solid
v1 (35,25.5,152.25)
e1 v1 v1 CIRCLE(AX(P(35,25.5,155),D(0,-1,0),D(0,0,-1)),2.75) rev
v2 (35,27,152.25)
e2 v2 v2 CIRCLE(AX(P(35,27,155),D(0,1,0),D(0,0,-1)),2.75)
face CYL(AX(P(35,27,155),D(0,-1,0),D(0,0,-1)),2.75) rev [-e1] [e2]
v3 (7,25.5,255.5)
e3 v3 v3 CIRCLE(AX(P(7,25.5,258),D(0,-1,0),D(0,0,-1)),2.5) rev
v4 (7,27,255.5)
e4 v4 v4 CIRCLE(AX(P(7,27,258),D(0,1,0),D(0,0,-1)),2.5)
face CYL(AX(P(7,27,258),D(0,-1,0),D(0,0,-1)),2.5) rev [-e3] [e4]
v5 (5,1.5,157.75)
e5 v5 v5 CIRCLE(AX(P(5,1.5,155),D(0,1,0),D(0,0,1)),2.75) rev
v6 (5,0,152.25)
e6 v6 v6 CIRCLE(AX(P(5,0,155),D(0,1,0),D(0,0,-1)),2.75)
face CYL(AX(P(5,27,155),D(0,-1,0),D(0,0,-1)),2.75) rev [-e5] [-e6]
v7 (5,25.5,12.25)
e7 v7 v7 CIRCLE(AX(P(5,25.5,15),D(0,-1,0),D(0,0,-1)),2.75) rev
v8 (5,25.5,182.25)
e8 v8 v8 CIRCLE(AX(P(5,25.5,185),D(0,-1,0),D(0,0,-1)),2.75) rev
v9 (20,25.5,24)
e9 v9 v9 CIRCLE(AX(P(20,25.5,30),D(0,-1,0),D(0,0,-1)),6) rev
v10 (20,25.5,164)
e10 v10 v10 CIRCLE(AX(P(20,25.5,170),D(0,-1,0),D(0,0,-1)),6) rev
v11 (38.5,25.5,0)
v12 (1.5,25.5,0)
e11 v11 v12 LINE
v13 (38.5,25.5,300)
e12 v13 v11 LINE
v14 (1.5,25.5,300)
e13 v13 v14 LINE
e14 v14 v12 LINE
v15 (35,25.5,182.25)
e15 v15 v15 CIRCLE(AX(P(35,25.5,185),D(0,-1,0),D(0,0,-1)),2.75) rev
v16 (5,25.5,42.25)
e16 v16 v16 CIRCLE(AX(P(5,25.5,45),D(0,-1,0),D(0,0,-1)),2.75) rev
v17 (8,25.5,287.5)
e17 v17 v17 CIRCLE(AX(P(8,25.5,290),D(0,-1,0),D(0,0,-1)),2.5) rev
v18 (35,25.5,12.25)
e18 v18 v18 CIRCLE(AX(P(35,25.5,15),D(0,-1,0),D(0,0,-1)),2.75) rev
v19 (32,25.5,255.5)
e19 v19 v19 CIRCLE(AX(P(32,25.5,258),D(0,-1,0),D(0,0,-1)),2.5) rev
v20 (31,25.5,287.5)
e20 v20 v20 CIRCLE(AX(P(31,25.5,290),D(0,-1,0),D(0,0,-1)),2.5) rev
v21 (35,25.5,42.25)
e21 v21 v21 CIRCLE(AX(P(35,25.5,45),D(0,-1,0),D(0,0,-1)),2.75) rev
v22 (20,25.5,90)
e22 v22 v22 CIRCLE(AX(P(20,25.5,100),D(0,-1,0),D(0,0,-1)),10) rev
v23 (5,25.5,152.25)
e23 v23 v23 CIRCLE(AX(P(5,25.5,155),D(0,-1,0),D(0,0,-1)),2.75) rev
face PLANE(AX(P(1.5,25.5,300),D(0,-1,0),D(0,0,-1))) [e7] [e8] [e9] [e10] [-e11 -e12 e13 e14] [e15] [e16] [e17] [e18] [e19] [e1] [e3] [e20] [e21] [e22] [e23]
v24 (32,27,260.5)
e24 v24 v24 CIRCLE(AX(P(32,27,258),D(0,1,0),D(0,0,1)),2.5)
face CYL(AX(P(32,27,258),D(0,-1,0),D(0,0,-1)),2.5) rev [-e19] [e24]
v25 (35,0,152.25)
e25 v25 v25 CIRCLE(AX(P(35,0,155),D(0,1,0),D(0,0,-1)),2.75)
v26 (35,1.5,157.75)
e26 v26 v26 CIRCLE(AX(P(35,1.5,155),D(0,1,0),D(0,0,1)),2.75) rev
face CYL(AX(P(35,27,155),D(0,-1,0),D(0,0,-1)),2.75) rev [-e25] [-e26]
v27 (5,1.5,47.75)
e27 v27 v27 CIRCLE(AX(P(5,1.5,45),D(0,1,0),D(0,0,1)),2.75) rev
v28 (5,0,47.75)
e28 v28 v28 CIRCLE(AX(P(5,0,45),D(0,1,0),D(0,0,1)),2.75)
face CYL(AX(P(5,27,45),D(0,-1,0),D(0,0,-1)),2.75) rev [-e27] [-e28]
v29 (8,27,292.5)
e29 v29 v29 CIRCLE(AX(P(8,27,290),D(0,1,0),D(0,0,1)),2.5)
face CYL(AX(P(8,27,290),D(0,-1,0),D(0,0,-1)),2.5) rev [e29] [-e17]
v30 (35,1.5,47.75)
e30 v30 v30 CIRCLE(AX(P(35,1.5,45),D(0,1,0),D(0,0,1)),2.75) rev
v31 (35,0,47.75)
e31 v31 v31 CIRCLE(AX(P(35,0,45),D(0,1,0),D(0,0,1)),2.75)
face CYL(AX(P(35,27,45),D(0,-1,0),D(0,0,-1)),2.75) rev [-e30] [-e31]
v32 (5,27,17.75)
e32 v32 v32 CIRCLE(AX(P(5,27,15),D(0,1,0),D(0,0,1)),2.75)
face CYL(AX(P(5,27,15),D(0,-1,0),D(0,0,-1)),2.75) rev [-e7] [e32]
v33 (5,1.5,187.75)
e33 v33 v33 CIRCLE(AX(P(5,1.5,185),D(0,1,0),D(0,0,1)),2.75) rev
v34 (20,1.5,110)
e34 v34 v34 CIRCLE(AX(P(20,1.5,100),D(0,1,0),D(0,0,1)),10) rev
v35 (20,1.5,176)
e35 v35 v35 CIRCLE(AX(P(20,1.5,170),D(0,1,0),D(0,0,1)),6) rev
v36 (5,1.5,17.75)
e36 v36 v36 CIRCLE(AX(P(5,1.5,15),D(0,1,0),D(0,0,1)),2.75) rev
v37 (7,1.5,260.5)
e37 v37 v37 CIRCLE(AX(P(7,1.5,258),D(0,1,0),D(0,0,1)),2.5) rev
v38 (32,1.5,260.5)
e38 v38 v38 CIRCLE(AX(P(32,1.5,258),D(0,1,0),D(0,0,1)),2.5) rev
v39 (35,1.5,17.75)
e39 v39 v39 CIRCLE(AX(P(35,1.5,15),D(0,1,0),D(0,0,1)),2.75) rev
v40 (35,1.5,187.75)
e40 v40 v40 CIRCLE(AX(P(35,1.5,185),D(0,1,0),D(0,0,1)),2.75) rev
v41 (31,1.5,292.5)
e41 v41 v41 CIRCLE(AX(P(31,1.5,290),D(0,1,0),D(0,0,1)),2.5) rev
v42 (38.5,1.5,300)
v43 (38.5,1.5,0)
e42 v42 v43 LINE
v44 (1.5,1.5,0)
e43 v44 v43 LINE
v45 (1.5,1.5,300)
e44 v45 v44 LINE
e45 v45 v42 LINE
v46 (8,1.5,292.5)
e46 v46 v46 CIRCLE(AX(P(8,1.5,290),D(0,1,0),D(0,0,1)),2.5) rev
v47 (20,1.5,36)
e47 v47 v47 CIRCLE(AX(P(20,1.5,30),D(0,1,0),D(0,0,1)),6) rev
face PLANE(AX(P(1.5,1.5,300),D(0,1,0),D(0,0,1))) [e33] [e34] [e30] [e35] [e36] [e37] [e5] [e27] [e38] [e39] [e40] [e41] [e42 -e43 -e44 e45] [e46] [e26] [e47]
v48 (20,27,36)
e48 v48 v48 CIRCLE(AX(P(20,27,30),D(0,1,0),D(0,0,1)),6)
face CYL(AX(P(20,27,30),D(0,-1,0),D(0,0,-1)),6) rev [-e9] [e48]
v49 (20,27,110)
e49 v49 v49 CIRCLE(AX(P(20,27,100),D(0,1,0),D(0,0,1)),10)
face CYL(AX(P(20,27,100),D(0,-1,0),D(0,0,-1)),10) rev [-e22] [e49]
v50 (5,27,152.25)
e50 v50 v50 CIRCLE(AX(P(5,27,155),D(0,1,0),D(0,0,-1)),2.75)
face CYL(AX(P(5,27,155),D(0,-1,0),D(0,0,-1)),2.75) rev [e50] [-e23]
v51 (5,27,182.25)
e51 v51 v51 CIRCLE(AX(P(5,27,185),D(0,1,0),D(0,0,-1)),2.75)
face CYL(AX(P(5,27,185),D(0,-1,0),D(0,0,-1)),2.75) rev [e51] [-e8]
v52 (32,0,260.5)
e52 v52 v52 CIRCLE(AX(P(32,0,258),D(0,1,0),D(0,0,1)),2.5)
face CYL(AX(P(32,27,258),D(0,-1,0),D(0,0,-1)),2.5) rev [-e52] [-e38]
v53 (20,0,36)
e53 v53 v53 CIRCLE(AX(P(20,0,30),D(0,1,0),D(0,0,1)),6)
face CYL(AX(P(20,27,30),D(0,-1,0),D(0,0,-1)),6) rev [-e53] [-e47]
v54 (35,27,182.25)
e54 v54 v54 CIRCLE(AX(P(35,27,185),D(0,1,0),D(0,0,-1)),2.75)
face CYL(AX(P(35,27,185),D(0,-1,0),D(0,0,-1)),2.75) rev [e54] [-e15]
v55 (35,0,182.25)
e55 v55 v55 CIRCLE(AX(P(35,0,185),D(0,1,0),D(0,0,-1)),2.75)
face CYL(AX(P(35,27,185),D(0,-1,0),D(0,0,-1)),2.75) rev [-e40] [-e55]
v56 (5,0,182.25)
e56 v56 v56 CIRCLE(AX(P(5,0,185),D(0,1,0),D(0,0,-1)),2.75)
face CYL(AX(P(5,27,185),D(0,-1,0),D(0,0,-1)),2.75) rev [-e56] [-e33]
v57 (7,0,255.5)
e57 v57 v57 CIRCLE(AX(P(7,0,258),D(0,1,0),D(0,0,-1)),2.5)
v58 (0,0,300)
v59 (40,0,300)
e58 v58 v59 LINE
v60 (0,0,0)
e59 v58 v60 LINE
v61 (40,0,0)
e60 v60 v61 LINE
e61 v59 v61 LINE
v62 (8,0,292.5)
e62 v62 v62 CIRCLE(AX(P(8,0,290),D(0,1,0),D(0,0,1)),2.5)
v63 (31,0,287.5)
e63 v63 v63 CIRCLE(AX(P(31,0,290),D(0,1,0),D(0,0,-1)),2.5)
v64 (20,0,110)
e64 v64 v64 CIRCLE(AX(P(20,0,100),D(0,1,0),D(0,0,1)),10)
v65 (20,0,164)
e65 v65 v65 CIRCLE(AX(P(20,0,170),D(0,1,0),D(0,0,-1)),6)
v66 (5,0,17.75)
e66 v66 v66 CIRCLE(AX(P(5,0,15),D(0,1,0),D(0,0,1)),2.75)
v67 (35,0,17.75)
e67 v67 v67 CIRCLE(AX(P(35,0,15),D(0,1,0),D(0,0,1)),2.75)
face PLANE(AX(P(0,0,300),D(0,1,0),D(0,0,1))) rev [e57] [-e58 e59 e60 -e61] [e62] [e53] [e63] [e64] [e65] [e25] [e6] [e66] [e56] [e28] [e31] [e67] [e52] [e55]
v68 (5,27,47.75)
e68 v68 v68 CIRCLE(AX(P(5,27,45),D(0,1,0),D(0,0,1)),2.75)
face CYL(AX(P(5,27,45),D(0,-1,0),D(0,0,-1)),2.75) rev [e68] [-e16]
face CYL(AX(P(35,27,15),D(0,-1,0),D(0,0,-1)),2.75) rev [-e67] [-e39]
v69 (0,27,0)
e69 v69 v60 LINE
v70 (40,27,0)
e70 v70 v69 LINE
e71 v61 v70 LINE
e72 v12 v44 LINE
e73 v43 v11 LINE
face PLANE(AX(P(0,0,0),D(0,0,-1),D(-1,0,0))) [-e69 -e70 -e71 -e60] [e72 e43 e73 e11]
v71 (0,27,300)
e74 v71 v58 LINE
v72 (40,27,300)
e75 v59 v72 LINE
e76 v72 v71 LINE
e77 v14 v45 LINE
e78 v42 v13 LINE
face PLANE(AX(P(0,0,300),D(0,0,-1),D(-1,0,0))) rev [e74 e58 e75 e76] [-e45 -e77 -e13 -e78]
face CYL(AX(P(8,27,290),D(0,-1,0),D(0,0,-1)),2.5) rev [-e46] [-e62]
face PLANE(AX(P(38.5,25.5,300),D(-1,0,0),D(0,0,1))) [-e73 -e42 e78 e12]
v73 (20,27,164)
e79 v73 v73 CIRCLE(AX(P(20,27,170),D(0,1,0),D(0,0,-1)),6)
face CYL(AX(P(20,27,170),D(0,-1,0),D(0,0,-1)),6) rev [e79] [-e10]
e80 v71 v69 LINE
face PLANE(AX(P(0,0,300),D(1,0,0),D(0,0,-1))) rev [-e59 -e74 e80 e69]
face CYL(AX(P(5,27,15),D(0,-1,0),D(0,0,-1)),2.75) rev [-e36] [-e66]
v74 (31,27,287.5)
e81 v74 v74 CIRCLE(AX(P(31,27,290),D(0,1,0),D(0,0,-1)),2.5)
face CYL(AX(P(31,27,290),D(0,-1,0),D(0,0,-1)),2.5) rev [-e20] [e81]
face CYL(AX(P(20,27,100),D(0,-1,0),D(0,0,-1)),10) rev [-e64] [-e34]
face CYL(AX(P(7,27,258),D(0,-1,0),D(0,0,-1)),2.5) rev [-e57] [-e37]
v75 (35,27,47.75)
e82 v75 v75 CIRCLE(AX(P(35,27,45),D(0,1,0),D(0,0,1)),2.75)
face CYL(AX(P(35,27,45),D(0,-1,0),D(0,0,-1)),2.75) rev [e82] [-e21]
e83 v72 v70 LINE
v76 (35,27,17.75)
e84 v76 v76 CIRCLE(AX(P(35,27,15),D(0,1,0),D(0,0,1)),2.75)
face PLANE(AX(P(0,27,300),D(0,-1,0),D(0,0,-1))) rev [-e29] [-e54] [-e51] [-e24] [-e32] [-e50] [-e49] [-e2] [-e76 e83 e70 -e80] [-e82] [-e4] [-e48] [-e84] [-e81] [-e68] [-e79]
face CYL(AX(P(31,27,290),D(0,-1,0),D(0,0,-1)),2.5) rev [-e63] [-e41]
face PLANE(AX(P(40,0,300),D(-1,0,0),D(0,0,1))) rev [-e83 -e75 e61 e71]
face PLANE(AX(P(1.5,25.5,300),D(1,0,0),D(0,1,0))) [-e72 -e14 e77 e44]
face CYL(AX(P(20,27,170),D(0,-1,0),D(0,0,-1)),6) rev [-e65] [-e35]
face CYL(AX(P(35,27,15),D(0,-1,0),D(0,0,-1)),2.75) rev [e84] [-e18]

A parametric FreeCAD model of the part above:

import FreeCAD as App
import Part
import Sketcher
from FreeCAD import Vector


def add_polygon(sketch, points):
    """Adds a closed chain of lines whose ends are joined by coincident constraints."""
    first, n = sketch.GeometryCount, len(points)
    for a, b in zip(points, points[1:] + points[:1]):
        sketch.addGeometry(Part.LineSegment(App.Vector(*a, 0), App.Vector(*b, 0)), False)
    for i in range(n):
        sketch.addConstraint(Sketcher.Constraint("Coincident", first + i, 2, first + (i + 1) % n, 1))

doc = App.newDocument("Part")
body = doc.addObject("PartDesign::Body", "Body")

# Sketch on XY plane
sketch1 = doc.addObject("Sketcher::SketchObject", "Sketch")
body.addObject(sketch1)
sketch1.AttachmentSupport = (doc.XY_Plane, [""])
sketch1.MapMode = "FlatFace"
add_polygon(sketch1, [(0, 27), (0, 0), (40, 0), (40, 27)])  # lines 0-3
add_polygon(sketch1, [(38, 2), (2, 2), (2, 26), (38, 26)])  # lines 4-7
sketch1.addConstraint([
    Sketcher.Constraint("Vertical", 0),
    Sketcher.Constraint("Horizontal", 1),
    Sketcher.Constraint("Vertical", 2),
    Sketcher.Constraint("Horizontal", 3),
    Sketcher.Constraint("Horizontal", 4),
    Sketcher.Constraint("Vertical", 5),
    Sketcher.Constraint("Horizontal", 6),
    Sketcher.Constraint("Vertical", 7),
    Sketcher.Constraint("Coincident", 0, 2, -1, 1),
    Sketcher.Constraint("DistanceX", 1, 1, 1, 2, 40.0),
    Sketcher.Constraint("DistanceX", 4, 2, 4, 1, 37.0),
    Sketcher.Constraint("DistanceY", 0, 2, 0, 1, 27.0),
    Sketcher.Constraint("DistanceY", 5, 1, 5, 2, 24.0),
    Sketcher.Constraint("DistanceX", -1, 1, 4, 2, 1.5),
    Sketcher.Constraint("DistanceY", -1, 1, 4, 2, 1.5),
])
pad1 = doc.addObject("PartDesign::Pad", "Pad")
body.addObject(pad1)
pad1.Profile = sketch1
pad1.Length = 300

# Sketch on XZ plane
sketch2 = doc.addObject("Sketcher::SketchObject", "Sketch001")
body.addObject(sketch2)
sketch2.AttachmentSupport = (doc.XZ_Plane, [""])
sketch2.MapMode = "FlatFace"
sketch2.addGeometry([
    Part.Circle(Vector(8, 290, 0), Vector(0, 0, 1), 2.5),
    Part.Circle(Vector(32, 258, 0), Vector(0, 0, 1), 2.5),
    Part.Circle(Vector(7, 258, 0), Vector(0, 0, 1), 2.5),
    Part.Circle(Vector(31, 290, 0), Vector(0, 0, 1), 2.5),
], False)
sketch2.addConstraint([
    Sketcher.Constraint("Equal", 0, 1),
    Sketcher.Constraint("Equal", 1, 2),
    Sketcher.Constraint("Equal", 2, 3),
    Sketcher.Constraint("Horizontal", 1, 3, 2, 3),
    Sketcher.Constraint("Horizontal", 0, 3, 3, 3),
    Sketcher.Constraint("Diameter", 0, 5.0),
    Sketcher.Constraint("DistanceX", -1, 1, 0, 3, 8.0),
    Sketcher.Constraint("DistanceY", -1, 1, 0, 3, 290.0),
    Sketcher.Constraint("DistanceX", -1, 1, 1, 3, 32.0),
    Sketcher.Constraint("DistanceY", -1, 1, 1, 3, 258.0),
    Sketcher.Constraint("DistanceX", -1, 1, 2, 3, 7.0),
    Sketcher.Constraint("DistanceX", -1, 1, 3, 3, 31.0),
])
pocket1 = doc.addObject("PartDesign::Pocket", "Pocket")
body.addObject(pocket1)
pocket1.Profile = sketch2
pocket1.Type = "ThroughAll"

# Sketch on XZ plane
sketch3 = doc.addObject("Sketcher::SketchObject", "Sketch002")
body.addObject(sketch3)
sketch3.AttachmentSupport = (doc.XZ_Plane, [""])
sketch3.MapMode = "FlatFace"
sketch3.addGeometry([
    Part.Circle(Vector(20, 30, 0), Vector(0, 0, 1), 6),  # 0
    Part.Circle(Vector(5, 15, 0), Vector(0, 0, 1), 2.8),  # 1
    Part.Circle(Vector(20, 100, 0), Vector(0, 0, 1), 10),  # 2
    Part.Circle(Vector(35, 15, 0), Vector(0, 0, 1), 2.8),  # 3
    Part.Circle(Vector(35, 45, 0), Vector(0, 0, 1), 2.8),  # 4
    Part.Circle(Vector(5, 45, 0), Vector(0, 0, 1), 2.8),  # 5
    Part.Circle(Vector(5, 185, 0), Vector(0, 0, 1), 2.8),  # 6
    Part.Circle(Vector(35, 185, 0), Vector(0, 0, 1), 2.8),  # 7
    Part.Circle(Vector(35, 155, 0), Vector(0, 0, 1), 2.8),  # 8
    Part.Circle(Vector(20, 170, 0), Vector(0, 0, 1), 6),  # 9
    Part.Circle(Vector(5, 155, 0), Vector(0, 0, 1), 2.8),  # 10
], False)
sketch3.addConstraint([
    Sketcher.Constraint("Equal", 1, 3),
    Sketcher.Constraint("Equal", 3, 4),
    Sketcher.Constraint("Equal", 4, 5),
    Sketcher.Constraint("Equal", 5, 6),
    Sketcher.Constraint("Equal", 6, 7),
    Sketcher.Constraint("Equal", 7, 8),
    Sketcher.Constraint("Equal", 0, 9),
    Sketcher.Constraint("Equal", 8, 10),
    Sketcher.Constraint("Horizontal", 1, 3, 3, 3),
    Sketcher.Constraint("Horizontal", 4, 3, 5, 3),
    Sketcher.Constraint("Horizontal", 6, 3, 7, 3),
    Sketcher.Constraint("Horizontal", 8, 3, 10, 3),
    Sketcher.Constraint("Vertical", 0, 3, 2, 3),
    Sketcher.Constraint("Vertical", 3, 3, 4, 3),
    Sketcher.Constraint("Vertical", 1, 3, 5, 3),
    Sketcher.Constraint("Vertical", 5, 3, 6, 3),
    Sketcher.Constraint("Vertical", 4, 3, 7, 3),
    Sketcher.Constraint("Vertical", 7, 3, 8, 3),
    Sketcher.Constraint("Vertical", 2, 3, 9, 3),
    Sketcher.Constraint("Vertical", 6, 3, 10, 3),
    Sketcher.Constraint("Diameter", 0, 12.0),
    Sketcher.Constraint("Diameter", 2, 20.0),
    Sketcher.Constraint("Diameter", 1, 5.5),
    Sketcher.Constraint("DistanceX", -1, 1, 0, 3, 20.0),
    Sketcher.Constraint("DistanceY", -1, 1, 0, 3, 30.0),
    Sketcher.Constraint("DistanceX", -1, 1, 1, 3, 5.0),
    Sketcher.Constraint("DistanceY", -1, 1, 1, 3, 15.0),
    Sketcher.Constraint("DistanceY", -1, 1, 2, 3, 100.0),
    Sketcher.Constraint("DistanceX", -1, 1, 3, 3, 35.0),
    Sketcher.Constraint("DistanceY", -1, 1, 4, 3, 45.0),
    Sketcher.Constraint("DistanceY", -1, 1, 6, 3, 185.0),
    Sketcher.Constraint("DistanceY", -1, 1, 8, 3, 155.0),
    Sketcher.Constraint("DistanceY", -1, 1, 9, 3, 170.0),
])
pocket2 = doc.addObject("PartDesign::Pocket", "Pocket001")
body.addObject(pocket2)
pocket2.Profile = sketch3
pocket2.Type = "ThroughAll"

doc.recompute()
